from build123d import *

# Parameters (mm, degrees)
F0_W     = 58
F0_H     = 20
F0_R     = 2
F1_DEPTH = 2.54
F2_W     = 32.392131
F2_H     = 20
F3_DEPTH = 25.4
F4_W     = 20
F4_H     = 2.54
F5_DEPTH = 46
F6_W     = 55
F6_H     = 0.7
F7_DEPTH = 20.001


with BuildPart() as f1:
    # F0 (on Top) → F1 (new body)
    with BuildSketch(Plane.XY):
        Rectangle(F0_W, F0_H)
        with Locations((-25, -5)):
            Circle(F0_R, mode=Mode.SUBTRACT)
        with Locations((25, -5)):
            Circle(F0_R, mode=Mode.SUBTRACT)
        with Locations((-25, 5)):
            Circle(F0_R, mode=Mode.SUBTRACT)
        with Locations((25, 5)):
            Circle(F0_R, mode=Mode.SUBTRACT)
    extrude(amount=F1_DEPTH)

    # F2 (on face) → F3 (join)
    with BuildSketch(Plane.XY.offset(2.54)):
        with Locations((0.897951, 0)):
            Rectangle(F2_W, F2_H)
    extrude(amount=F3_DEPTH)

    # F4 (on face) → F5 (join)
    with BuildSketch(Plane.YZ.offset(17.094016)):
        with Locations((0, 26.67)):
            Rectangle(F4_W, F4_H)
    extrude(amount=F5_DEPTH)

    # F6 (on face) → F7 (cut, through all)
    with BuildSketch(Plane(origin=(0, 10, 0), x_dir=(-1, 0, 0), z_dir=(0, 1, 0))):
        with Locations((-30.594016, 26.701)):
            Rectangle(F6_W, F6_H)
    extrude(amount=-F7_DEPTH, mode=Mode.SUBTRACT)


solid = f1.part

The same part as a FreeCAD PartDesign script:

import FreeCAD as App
import Part
import Sketcher


def add_polygon(sketch, points):
    """Adds a closed chain of lines whose ends are joined by coincident constraints."""
    first, n = sketch.GeometryCount, len(points)
    for a, b in zip(points, points[1:] + points[:1]):
        sketch.addGeometry(Part.LineSegment(App.Vector(*a, 0), App.Vector(*b, 0)), False)
    for i in range(n):
        sketch.addConstraint(Sketcher.Constraint("Coincident", first + i, 2, first + (i + 1) % n, 1))

doc = App.newDocument("Part")
body = doc.addObject("PartDesign::Body", "Body")

# Sketch on XY plane
sketch1 = body.newObject("Sketcher::SketchObject", "Sketch")
sketch1.AttachmentSupport = (doc.getObject("XY_Plane"), [""])
sketch1.MapMode = "FlatFace"
add_polygon(sketch1, [(-29, 10), (-29, -10), (29, -10), (29, 10)])  # lines 0-3
sketch1.addGeometry(Part.Circle(App.Vector(-25, -5, 0), App.Vector(0, 0, 1), 2), False)  # 4
sketch1.addGeometry(Part.Circle(App.Vector(25, -5, 0), App.Vector(0, 0, 1), 2), False)  # 5
sketch1.addGeometry(Part.Circle(App.Vector(-25, 5, 0), App.Vector(0, 0, 1), 2), False)  # 6
sketch1.addGeometry(Part.Circle(App.Vector(25, 5, 0), App.Vector(0, 0, 1), 2), False)  # 7
sketch1.addConstraint(Sketcher.Constraint("Vertical", 0))
sketch1.addConstraint(Sketcher.Constraint("Horizontal", 1))
sketch1.addConstraint(Sketcher.Constraint("Vertical", 2))
sketch1.addConstraint(Sketcher.Constraint("Horizontal", 3))
sketch1.addConstraint(Sketcher.Constraint("Equal", 4, 5))
sketch1.addConstraint(Sketcher.Constraint("Equal", 5, 6))
sketch1.addConstraint(Sketcher.Constraint("Equal", 6, 7))
sketch1.addConstraint(Sketcher.Constraint("Symmetric", 5, 3, 6, 3, -1, 1))
sketch1.addConstraint(Sketcher.Constraint("Symmetric", 4, 3, 7, 3, -1, 1))
sketch1.addConstraint(Sketcher.Constraint("Symmetric", 0, 2, 2, 2, -1, 1))
sketch1.addConstraint(Sketcher.Constraint("Symmetric", 4, 3, 5, 3, -2))
sketch1.addConstraint(Sketcher.Constraint("Diameter", 4, 4.0))
sketch1.addConstraint(Sketcher.Constraint("DistanceX", 1, 1, 1, 2, 58.0))
sketch1.addConstraint(Sketcher.Constraint("DistanceY", 0, 2, 0, 1, 20.0))
sketch1.addConstraint(Sketcher.Constraint("DistanceX", 4, 3, -1, 1, 25.0))
sketch1.addConstraint(Sketcher.Constraint("DistanceY", 4, 3, -1, 1, 5.0))
pad1 = body.newObject("PartDesign::Pad", "Pad")
pad1.Profile = sketch1
pad1.Length = 2.54

# Sketch on XY plane
sketch2 = body.newObject("Sketcher::SketchObject", "Sketch001")
sketch2.AttachmentSupport = (doc.getObject("XY_Plane"), [""])
sketch2.MapMode = "FlatFace"
sketch2.AttachmentOffset = App.Placement(App.Vector(0, 0, 2.54), App.Rotation())
add_polygon(sketch2, [(-15, 10), (-15, -10), (17, -10), (17, 10)])  # lines 0-3
sketch2.addConstraint(Sketcher.Constraint("Vertical", 0))
sketch2.addConstraint(Sketcher.Constraint("Horizontal", 1))
sketch2.addConstraint(Sketcher.Constraint("Vertical", 2))
sketch2.addConstraint(Sketcher.Constraint("Horizontal", 3))
sketch2.addConstraint(Sketcher.Constraint("DistanceY", 0, 2, 0, 1, 20.0))
sketch2.addConstraint(Sketcher.Constraint("DistanceY", 0, 2, -1, 1, 10.0))
sketch2.addConstraint(Sketcher.Constraint("DistanceX", 1, 1, 1, 2, 32.392131))
sketch2.addConstraint(Sketcher.Constraint("DistanceX", 0, 2, -1, 1, 15.298115))
pad2 = body.newObject("PartDesign::Pad", "Pad001")
pad2.Profile = sketch2
pad2.Length = 25.4

# Sketch on YZ plane
sketch3 = body.newObject("Sketcher::SketchObject", "Sketch002")
sketch3.AttachmentSupport = (doc.getObject("YZ_Plane"), [""])
sketch3.MapMode = "FlatFace"
sketch3.AttachmentOffset = App.Placement(App.Vector(0, 0, 17.094016), App.Rotation())
add_polygon(sketch3, [(-10, 27.9), (-10, 25.4), (10, 25.4), (10, 27.9)])  # lines 0-3
sketch3.addConstraint(Sketcher.Constraint("Vertical", 0))
sketch3.addConstraint(Sketcher.Constraint("Horizontal", 1))
sketch3.addConstraint(Sketcher.Constraint("Vertical", 2))
sketch3.addConstraint(Sketcher.Constraint("Horizontal", 3))
sketch3.addConstraint(Sketcher.Constraint("DistanceX", 1, 1, 1, 2, 20.0))
sketch3.addConstraint(Sketcher.Constraint("DistanceX", 0, 2, -1, 1, 10.0))
sketch3.addConstraint(Sketcher.Constraint("DistanceY", 0, 2, 0, 1, 2.54))
sketch3.addConstraint(Sketcher.Constraint("DistanceY", -1, 1, 0, 2, 25.4))
pad3 = body.newObject("PartDesign::Pad", "Pad002")
pad3.Profile = sketch3
pad3.Length = 46

# Sketch on XZ plane
sketch4 = body.newObject("Sketcher::SketchObject", "Sketch003")
sketch4.AttachmentSupport = (doc.getObject("XZ_Plane"), [""])
sketch4.MapMode = "FlatFace"
sketch4.AttachmentOffset = App.Placement(App.Vector(0, 0, -10), App.Rotation())
add_polygon(sketch4, [(58.1, 27.1), (58.1, 26.4), (3.1, 26.4), (3.1, 27.1)])  # lines 0-3
sketch4.addConstraint(Sketcher.Constraint("Vertical", 0))
sketch4.addConstraint(Sketcher.Constraint("Horizontal", 1))
sketch4.addConstraint(Sketcher.Constraint("Vertical", 2))
sketch4.addConstraint(Sketcher.Constraint("Horizontal", 3))
sketch4.addConstraint(Sketcher.Constraint("DistanceX", 1, 2, 1, 1, 55.0))
sketch4.addConstraint(Sketcher.Constraint("DistanceY", 0, 2, 0, 1, 0.7))
sketch4.addConstraint(Sketcher.Constraint("DistanceY", -1, 1, 0, 2, 26.351))
sketch4.addConstraint(Sketcher.Constraint("DistanceX", -1, 1, 0, 2, 58.094016))
pocket1 = body.newObject("PartDesign::Pocket", "Pocket")
pocket1.Profile = sketch4
pocket1.Type = "ThroughAll"
pocket1.Reversed = True

doc.recompute()
